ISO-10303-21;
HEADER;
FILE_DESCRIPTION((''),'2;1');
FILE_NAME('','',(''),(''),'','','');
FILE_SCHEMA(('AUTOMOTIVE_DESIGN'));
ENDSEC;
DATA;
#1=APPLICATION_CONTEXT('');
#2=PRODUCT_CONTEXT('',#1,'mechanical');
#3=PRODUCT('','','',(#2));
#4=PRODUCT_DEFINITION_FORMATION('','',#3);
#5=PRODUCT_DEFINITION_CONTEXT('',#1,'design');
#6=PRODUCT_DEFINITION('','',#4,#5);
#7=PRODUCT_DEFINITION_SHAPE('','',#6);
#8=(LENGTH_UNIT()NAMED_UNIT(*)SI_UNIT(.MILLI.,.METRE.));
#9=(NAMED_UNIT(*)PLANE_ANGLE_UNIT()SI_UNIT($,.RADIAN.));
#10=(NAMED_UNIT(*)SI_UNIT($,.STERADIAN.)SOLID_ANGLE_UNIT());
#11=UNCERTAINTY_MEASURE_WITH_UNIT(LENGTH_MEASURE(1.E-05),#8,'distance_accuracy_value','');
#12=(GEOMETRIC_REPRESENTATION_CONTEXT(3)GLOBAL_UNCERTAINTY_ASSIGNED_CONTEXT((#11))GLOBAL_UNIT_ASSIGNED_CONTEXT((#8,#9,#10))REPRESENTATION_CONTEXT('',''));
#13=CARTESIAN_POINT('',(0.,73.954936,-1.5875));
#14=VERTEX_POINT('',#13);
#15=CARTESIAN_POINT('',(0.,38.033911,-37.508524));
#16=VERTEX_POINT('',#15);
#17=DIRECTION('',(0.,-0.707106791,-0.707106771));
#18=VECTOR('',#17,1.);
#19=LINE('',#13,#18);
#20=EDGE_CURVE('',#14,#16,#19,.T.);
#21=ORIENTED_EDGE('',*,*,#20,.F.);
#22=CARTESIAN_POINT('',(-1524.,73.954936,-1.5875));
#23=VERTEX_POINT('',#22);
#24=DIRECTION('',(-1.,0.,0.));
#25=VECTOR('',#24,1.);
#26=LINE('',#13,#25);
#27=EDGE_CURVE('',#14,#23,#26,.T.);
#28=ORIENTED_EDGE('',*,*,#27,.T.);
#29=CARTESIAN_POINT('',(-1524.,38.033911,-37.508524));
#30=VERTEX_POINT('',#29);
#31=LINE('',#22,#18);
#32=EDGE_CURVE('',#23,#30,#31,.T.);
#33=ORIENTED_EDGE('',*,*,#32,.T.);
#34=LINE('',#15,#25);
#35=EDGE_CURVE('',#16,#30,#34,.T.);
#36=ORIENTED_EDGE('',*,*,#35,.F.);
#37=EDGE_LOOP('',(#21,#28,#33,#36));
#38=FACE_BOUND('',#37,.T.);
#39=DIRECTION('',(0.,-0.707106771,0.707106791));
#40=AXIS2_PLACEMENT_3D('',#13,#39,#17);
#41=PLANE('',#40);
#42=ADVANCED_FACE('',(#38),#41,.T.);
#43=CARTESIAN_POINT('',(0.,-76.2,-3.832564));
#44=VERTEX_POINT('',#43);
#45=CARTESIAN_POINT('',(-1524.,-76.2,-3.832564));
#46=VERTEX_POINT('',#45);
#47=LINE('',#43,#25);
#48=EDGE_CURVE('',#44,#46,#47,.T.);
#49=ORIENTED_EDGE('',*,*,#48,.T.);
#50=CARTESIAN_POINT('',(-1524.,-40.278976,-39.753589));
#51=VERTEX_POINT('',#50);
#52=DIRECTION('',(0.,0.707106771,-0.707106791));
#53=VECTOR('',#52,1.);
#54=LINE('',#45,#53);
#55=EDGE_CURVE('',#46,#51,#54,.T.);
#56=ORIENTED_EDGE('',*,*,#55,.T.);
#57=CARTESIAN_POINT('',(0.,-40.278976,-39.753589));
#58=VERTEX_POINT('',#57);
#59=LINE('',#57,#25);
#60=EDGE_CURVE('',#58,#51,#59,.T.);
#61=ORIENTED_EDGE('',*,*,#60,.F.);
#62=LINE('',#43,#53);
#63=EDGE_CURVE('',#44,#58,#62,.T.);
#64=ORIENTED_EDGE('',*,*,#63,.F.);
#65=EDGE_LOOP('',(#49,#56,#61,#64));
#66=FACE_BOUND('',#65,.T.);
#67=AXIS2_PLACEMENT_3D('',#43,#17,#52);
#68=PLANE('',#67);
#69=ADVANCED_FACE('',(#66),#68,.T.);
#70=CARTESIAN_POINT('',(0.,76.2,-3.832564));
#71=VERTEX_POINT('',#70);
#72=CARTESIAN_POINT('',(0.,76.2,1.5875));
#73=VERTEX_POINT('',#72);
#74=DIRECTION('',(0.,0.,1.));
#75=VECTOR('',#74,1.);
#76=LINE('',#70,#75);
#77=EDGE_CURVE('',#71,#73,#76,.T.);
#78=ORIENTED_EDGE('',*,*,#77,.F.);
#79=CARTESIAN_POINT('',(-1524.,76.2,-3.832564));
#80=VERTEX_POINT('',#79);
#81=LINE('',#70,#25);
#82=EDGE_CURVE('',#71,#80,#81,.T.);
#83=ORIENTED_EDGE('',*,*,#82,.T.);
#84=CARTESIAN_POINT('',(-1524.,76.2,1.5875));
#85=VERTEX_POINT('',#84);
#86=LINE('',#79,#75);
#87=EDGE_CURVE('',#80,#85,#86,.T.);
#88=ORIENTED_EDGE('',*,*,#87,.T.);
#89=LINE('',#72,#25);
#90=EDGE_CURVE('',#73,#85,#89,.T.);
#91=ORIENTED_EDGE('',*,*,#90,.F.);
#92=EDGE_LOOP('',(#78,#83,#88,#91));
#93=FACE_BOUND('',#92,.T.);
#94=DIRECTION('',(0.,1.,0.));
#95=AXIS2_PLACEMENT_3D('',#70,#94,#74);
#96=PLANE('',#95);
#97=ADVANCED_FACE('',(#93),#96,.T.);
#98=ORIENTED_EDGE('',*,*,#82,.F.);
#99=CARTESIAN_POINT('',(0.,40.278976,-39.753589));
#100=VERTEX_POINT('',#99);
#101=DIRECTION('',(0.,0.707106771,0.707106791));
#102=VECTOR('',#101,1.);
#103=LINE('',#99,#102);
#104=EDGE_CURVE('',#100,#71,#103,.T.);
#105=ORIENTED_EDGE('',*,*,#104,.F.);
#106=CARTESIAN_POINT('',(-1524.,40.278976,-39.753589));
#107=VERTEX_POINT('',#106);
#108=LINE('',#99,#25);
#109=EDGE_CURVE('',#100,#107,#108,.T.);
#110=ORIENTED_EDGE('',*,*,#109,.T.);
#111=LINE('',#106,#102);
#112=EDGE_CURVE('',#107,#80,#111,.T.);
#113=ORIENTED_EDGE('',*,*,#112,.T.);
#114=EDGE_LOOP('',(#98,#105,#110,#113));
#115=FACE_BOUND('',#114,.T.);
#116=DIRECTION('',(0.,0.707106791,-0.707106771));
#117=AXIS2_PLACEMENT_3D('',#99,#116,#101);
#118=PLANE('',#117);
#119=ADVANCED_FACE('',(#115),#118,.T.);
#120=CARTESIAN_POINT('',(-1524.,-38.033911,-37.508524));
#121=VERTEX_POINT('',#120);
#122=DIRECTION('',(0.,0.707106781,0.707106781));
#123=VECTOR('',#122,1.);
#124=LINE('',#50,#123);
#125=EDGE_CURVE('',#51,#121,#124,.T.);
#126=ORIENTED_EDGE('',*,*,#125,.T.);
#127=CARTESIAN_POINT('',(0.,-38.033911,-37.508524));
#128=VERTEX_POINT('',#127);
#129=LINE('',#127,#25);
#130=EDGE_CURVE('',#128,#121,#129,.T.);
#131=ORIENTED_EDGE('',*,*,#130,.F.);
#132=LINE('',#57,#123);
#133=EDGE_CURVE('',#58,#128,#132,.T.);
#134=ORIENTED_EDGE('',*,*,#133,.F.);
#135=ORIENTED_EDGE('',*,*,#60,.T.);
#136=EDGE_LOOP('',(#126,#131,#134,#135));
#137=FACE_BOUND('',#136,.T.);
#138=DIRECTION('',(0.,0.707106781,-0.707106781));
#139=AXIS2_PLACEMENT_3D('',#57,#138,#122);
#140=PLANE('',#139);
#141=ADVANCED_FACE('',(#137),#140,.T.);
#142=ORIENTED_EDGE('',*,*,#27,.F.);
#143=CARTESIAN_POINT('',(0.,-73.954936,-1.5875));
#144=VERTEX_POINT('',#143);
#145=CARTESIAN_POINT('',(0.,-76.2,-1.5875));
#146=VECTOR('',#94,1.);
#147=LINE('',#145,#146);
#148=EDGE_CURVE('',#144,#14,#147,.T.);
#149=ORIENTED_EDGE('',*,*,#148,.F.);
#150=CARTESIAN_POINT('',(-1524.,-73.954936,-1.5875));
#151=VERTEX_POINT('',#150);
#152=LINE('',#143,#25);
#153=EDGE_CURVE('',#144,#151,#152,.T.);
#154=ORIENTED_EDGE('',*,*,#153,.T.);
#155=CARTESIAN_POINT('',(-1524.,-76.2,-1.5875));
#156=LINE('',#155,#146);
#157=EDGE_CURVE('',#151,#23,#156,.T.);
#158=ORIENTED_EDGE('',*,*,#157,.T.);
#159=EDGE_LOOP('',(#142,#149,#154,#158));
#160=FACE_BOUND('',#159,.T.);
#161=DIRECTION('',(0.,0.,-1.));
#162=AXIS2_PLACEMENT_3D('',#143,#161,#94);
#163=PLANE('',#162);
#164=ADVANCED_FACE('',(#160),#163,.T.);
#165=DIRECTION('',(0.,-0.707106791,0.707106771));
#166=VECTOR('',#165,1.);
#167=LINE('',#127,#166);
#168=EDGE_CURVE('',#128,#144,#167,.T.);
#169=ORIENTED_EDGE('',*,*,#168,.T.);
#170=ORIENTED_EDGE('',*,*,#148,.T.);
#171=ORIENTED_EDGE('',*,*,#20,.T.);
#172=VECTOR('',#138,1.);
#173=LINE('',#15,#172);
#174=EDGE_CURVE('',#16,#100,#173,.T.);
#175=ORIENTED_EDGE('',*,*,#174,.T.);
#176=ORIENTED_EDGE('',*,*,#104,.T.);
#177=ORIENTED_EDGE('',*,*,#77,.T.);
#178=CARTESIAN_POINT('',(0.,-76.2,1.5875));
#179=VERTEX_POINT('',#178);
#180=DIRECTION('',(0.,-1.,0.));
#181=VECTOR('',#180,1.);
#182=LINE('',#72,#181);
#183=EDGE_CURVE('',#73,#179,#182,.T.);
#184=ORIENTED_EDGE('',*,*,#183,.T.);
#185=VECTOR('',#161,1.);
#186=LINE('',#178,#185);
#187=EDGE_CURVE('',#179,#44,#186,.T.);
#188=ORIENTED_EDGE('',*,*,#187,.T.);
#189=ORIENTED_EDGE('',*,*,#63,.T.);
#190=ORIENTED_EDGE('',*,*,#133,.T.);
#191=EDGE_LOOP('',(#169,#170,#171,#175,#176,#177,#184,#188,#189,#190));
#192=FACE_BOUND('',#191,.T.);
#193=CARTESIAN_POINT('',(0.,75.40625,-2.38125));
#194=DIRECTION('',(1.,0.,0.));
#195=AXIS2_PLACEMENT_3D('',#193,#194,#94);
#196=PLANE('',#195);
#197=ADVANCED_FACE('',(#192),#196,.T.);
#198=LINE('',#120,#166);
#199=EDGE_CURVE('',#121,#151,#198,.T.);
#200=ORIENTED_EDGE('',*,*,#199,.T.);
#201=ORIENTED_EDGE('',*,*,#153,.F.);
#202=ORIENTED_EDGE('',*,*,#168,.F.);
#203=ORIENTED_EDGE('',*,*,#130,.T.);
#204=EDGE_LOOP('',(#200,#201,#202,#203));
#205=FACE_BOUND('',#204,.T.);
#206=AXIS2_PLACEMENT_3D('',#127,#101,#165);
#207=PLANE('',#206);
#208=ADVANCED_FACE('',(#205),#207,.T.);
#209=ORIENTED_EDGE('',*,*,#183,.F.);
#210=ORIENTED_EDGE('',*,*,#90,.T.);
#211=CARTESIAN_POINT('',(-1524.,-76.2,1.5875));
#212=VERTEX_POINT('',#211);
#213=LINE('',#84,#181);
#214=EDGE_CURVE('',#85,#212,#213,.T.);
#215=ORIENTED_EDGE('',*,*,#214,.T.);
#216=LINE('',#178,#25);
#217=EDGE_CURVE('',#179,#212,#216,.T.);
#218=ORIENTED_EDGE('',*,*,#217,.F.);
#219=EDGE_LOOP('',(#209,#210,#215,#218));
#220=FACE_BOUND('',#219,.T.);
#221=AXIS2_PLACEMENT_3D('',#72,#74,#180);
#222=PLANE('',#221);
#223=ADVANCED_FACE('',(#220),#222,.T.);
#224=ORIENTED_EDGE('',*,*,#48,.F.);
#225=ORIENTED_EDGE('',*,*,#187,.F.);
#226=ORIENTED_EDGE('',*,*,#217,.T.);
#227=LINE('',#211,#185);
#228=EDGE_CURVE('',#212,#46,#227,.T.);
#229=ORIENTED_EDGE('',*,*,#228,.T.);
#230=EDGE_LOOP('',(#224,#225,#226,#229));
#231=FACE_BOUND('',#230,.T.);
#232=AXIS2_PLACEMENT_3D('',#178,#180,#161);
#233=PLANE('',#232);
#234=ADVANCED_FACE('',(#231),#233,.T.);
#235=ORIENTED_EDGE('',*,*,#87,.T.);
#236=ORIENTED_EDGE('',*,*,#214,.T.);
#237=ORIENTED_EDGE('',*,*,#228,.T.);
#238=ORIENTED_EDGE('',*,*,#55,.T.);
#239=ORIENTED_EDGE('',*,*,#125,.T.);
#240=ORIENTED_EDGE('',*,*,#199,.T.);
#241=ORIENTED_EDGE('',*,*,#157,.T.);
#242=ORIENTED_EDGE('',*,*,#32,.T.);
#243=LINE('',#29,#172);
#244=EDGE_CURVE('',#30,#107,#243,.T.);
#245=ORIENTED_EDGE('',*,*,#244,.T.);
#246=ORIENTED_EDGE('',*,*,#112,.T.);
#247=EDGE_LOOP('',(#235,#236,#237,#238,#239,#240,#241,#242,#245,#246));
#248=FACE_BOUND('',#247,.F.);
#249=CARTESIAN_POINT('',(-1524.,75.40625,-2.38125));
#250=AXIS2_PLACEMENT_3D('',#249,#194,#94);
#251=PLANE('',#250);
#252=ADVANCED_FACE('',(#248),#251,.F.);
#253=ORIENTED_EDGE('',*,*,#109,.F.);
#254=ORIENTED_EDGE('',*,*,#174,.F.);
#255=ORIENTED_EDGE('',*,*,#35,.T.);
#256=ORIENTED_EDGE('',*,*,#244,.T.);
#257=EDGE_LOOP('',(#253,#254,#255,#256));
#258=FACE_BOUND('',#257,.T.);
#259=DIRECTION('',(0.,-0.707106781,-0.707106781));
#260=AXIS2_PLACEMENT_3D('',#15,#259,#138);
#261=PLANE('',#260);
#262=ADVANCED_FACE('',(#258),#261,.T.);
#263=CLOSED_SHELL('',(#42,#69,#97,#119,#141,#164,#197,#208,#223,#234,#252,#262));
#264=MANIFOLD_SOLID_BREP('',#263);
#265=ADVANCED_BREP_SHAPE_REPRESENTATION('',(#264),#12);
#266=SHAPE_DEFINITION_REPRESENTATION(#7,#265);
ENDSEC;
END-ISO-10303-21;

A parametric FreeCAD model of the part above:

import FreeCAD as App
import Part
import Sketcher

V = App.Vector
Q = App.Units.Quantity


def add_polygon(sketch, points):
    """Adds a closed chain of lines whose ends are joined by coincident constraints."""
    first, n = sketch.GeometryCount, len(points)
    for a, b in zip(points, points[1:] + points[:1]):
        sketch.addGeometry(Part.LineSegment(App.Vector(*a, 0), App.Vector(*b, 0)), False)
    for i in range(n):
        sketch.addConstraint(Sketcher.Constraint("Coincident", first + i, 2, first + (i + 1) % n, 1))

doc = App.newDocument("Part")
body = doc.addObject("PartDesign::Body", "Body")

sketch1 = doc.addObject("Sketcher::SketchObject", "Sketch")
body.addObject(sketch1)
sketch1.AttachmentSupport = (doc.YZ_Plane, [""])
sketch1.MapMode = "FlatFace"
add_polygon(sketch1, [(76.2, -3.8), (76.2, 1.6), (-76.2, 1.6), (-76.2, -3.8), (-40.3, -39.8), (-38, -37.5), (-74, -1.6), (74, -1.6), (38, -37.5), (40.3, -39.8)])
sketch1.addConstraint([
    Sketcher.Constraint("Vertical", 0),
    Sketcher.Constraint("Horizontal", 1),
    Sketcher.Constraint("Vertical", 2),
    Sketcher.Constraint("Horizontal", 6),
    Sketcher.Constraint("Symmetric", 4, 2, 7, 2, -2),
    Sketcher.Constraint("Symmetric", 3, 2, 8, 2, -2),
    Sketcher.Constraint("Symmetric", 2, 2, 9, 2, -2),
    Sketcher.Constraint("Perpendicular", 3, 4),
    Sketcher.Constraint("Perpendicular", 4, 5),
    Sketcher.Constraint("Perpendicular", 5, 7),
    Sketcher.Constraint("Perpendicular", 7, 8),
    Sketcher.Constraint("Equal", 3, 5),
    Sketcher.Constraint("DistanceX", 1, 2, 1, 1, Q("6 in")),
    Sketcher.Constraint("Distance", 3, Q("2 in")),
    Sketcher.Constraint("Distance", 4, Q("0.1250001 in")),
    Sketcher.Constraint("DistanceY", -1, 1, 0, 2, Q("0.0625 in")),
    Sketcher.Constraint("DistanceY", 5, 2, -1, 1, Q("0.0625 in")),
])
pad1 = doc.addObject("PartDesign::Pad", "Pad")
body.addObject(pad1)
pad1.Profile = sketch1
pad1.Length = Q("60 in")
pad1.Reversed = True

doc.recompute()
